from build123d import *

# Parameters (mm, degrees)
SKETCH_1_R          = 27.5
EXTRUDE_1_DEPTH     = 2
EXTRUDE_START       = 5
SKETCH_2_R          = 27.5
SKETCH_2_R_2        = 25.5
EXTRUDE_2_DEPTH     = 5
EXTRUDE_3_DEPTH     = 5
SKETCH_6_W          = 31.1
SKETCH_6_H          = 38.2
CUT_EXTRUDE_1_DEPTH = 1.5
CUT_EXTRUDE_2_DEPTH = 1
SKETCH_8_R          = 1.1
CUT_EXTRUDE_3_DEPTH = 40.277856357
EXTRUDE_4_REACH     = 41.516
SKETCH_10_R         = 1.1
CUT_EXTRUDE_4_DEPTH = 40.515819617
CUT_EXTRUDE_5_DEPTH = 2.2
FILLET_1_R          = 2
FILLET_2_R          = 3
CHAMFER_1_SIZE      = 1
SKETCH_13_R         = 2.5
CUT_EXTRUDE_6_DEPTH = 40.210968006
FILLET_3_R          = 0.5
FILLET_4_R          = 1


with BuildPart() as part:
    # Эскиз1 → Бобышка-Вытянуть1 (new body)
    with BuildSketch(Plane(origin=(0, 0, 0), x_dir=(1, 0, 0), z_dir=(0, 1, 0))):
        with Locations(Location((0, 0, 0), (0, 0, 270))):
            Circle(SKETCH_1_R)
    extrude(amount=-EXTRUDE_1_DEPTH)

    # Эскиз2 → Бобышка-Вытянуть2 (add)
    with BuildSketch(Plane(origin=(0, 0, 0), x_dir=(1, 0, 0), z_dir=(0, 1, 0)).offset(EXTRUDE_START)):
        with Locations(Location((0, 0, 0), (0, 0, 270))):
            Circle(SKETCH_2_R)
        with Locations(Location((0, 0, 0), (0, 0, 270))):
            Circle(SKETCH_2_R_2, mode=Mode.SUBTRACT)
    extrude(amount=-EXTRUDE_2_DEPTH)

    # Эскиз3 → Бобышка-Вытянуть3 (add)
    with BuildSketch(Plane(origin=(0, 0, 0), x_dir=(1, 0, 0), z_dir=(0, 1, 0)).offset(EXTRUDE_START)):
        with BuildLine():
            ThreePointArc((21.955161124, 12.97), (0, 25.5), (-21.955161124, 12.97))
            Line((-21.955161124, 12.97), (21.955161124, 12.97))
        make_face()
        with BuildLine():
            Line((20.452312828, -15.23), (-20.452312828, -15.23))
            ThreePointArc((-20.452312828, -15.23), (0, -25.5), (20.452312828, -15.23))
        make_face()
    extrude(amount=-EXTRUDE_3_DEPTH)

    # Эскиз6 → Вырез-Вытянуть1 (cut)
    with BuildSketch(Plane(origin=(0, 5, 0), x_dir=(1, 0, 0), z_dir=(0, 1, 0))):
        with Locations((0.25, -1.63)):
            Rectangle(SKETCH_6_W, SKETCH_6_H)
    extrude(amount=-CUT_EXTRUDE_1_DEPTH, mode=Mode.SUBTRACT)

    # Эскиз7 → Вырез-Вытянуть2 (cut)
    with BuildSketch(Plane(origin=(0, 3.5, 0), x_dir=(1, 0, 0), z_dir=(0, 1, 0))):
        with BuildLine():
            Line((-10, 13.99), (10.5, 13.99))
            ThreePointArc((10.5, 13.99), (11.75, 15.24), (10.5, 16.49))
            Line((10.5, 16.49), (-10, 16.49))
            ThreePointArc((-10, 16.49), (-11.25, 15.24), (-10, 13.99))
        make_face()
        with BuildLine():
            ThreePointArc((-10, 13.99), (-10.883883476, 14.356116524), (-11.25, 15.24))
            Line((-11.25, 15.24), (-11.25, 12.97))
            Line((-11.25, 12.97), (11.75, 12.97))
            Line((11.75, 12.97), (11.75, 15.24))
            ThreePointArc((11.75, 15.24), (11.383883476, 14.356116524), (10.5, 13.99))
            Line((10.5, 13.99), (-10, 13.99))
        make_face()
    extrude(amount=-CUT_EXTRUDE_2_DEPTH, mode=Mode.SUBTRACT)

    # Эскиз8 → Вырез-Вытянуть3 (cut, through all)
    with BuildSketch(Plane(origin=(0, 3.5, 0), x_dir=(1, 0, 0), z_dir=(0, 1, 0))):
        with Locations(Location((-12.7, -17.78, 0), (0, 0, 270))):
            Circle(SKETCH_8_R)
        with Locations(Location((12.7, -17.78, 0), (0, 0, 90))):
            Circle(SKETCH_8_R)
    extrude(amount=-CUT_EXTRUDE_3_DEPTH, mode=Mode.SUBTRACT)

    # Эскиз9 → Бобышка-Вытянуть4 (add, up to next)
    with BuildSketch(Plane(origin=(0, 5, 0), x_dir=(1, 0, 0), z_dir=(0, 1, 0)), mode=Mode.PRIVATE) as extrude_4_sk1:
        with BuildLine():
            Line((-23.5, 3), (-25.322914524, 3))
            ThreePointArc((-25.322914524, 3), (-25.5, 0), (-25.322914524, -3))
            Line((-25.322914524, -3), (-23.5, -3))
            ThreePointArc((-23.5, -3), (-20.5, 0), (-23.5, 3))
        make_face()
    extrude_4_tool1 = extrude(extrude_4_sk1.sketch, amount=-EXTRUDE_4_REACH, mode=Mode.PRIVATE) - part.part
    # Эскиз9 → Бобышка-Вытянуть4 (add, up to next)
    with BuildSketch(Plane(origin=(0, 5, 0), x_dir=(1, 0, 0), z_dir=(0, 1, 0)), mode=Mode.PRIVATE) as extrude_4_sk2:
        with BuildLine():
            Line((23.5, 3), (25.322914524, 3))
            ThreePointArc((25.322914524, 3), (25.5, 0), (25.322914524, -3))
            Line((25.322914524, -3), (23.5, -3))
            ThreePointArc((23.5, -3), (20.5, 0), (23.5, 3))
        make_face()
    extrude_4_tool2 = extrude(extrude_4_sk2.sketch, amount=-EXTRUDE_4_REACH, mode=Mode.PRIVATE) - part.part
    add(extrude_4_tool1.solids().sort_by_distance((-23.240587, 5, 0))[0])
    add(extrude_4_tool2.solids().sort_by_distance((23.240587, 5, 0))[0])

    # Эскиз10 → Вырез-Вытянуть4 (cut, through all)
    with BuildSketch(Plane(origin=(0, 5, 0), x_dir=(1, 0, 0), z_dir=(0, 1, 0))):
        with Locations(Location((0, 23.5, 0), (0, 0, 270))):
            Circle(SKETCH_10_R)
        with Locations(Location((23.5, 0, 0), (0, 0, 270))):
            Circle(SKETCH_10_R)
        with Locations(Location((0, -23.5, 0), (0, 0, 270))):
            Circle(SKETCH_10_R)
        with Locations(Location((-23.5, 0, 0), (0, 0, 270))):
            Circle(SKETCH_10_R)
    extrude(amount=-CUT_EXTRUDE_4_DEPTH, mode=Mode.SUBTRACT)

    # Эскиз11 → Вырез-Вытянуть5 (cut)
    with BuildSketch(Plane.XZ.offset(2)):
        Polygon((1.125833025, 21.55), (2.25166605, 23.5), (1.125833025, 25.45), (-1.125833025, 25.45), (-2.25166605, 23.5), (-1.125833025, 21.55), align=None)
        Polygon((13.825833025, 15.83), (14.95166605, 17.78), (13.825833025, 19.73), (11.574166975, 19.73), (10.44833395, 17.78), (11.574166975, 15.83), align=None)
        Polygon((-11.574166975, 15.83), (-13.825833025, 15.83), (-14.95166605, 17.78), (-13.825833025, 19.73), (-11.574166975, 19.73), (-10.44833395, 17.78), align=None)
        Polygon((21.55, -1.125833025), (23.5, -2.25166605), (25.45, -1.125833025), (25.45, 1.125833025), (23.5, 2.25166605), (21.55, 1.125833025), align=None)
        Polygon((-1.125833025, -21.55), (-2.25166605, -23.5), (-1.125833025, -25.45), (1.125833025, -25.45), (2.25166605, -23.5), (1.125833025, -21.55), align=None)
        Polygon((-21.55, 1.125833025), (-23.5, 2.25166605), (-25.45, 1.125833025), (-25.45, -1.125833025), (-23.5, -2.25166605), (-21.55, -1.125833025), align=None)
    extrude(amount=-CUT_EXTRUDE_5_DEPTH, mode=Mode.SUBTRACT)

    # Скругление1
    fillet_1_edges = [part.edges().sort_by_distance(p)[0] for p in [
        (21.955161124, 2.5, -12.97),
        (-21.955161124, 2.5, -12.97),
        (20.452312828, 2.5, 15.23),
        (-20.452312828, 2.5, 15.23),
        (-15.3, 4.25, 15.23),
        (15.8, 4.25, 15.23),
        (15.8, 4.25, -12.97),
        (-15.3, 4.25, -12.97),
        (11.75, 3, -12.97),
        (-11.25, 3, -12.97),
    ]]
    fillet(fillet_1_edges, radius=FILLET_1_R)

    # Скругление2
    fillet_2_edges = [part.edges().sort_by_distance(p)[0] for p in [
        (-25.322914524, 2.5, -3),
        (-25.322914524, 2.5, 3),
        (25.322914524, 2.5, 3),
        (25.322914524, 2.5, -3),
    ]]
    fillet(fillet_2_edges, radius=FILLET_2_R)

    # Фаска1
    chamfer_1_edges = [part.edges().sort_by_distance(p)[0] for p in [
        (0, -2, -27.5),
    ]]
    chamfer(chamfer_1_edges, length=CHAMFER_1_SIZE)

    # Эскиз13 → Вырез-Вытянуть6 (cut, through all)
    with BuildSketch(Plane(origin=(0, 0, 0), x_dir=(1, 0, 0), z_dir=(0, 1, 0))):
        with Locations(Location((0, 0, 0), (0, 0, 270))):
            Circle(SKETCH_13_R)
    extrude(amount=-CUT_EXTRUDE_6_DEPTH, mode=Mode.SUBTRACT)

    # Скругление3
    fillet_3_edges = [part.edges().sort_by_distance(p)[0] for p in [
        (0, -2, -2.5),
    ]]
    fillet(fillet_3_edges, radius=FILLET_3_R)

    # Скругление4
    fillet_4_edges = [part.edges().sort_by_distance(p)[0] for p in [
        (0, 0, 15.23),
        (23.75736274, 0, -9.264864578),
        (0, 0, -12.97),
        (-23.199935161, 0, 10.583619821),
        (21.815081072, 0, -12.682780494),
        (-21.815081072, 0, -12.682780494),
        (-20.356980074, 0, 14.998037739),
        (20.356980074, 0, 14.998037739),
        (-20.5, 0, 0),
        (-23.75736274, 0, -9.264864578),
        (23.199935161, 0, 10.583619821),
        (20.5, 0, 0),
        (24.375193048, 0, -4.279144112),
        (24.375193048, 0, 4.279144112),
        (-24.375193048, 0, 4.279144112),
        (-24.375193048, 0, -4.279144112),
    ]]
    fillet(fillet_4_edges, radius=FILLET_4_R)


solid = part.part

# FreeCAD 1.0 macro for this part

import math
import FreeCAD as App
import Part
import Sketcher
Q = App.Units.Quantity


def edges_at(feature, points):
    """Names of the edges that pass closest to the given points."""
    edges = feature.Shape.Edges
    near = lambda p: min(range(len(edges)), key=lambda i: edges[i].distToShape(Part.Vertex(*p))[0])
    return sorted({f"Edge{near(p) + 1}" for p in points})


def add_polygon(sketch, points):
    """Adds a closed chain of lines whose ends are joined by coincident constraints."""
    first, n = sketch.GeometryCount, len(points)
    for a, b in zip(points, points[1:] + points[:1]):
        sketch.addGeometry(Part.LineSegment(App.Vector(*a, 0), App.Vector(*b, 0)), False)
    for i in range(n):
        sketch.addConstraint(Sketcher.Constraint("Coincident", first + i, 2, first + (i + 1) % n, 1))

doc = App.newDocument("Part")
params = doc.addObject("Spreadsheet::Sheet", "Params")
for row, (alias, value) in enumerate([
    ("sketch1_diameter", "55 mm"),
    ("pad1_length", "2 mm"),
    ("sketch2_diameter", "55 mm"),
    ("sketch2_diameter2", "51 mm"),
    ("pad2_length", "5 mm"),
    ("sketch3_radius", "25.5 mm"),
    ("pad3_length", "5 mm"),
    ("sketch4_width", "31.1 mm"),
    ("sketch4_height", "38.2 mm"),
    ("pocket1_length", "1.5 mm"),
    ("sketch5_width", "23 mm"),
    ("sketch5_radius", "1.25 mm"),
    ("sketch5_height", "2.27 mm"),
    ("pocket2_length", "1 mm"),
    ("sketch6_diameter", "2.2 mm"),
    ("sketch7_radius", "3 mm"),
    ("sketch7_radius2", "25.5 mm"),
    ("sketch8_radius", "3 mm"),
    ("sketch8_radius2", "25.5 mm"),
    ("sketch9_diameter", "2.2 mm"),
    ("pocket5_length", "2.2 mm"),
    ("fillet_radius", "2 mm"),
    ("fillet2_radius", "3 mm"),
    ("chamfer_size", "1 mm"),
    ("sketch11_diameter", "5 mm"),
    ("fillet3_radius", "0.5 mm"),
    ("fillet4_radius", "1 mm"),
], start=1):
    params.set(f"A{row}", alias)
    params.set(f"B{row}", "=" + value)
    params.setAlias(f"B{row}", alias)

body = doc.addObject("PartDesign::Body", "Body")

# Sketch on XZ plane
sketch1 = body.newObject("Sketcher::SketchObject", "Sketch")
sketch1.AttachmentSupport = (doc.getObject("XZ_Plane"), [""])
sketch1.MapMode = "FlatFace"
sketch1.addGeometry(Part.Circle(App.Vector(0, 0, 0), App.Vector(0, 0, 1), 28), False)
sketch1.addConstraint(Sketcher.Constraint("Coincident", 0, 3, -1, 1))
sketch1.addConstraint(Sketcher.Constraint("Diameter", 0, 55.0))
sketch1.setExpression("Constraints[1]", "Params.sketch1_diameter")
pad1 = body.newObject("PartDesign::Pad", "Pad")
pad1.Profile = sketch1
pad1.setExpression("Length", "Params.pad1_length")

# Sketch on XZ plane
sketch2 = body.newObject("Sketcher::SketchObject", "Sketch001")
sketch2.AttachmentSupport = (doc.getObject("XZ_Plane"), [""])
sketch2.MapMode = "FlatFace"
sketch2.AttachmentOffset = App.Placement(App.Vector(0, 0, -5), App.Rotation())
sketch2.addGeometry(Part.Circle(App.Vector(0, 0, 0), App.Vector(0, 0, 1), 28), False)
sketch2.addGeometry(Part.Circle(App.Vector(0, 0, 0), App.Vector(0, 0, 1), 26), False)
sketch2.addConstraint(Sketcher.Constraint("Coincident", 0, 3, -1, 1))
sketch2.addConstraint(Sketcher.Constraint("Coincident", 1, 3, -1, 1))
sketch2.addConstraint(Sketcher.Constraint("Diameter", 0, 55.0))
sketch2.addConstraint(Sketcher.Constraint("Diameter", 1, 51.0))
sketch2.setExpression("Constraints[2]", "Params.sketch2_diameter")
sketch2.setExpression("Constraints[3]", "Params.sketch2_diameter2")
pad2 = body.newObject("PartDesign::Pad", "Pad001")
pad2.Profile = sketch2
pad2.setExpression("Length", "Params.pad2_length")

# Sketch on XZ plane
sketch3 = body.newObject("Sketcher::SketchObject", "Sketch002")
sketch3.AttachmentSupport = (doc.getObject("XZ_Plane"), [""])
sketch3.MapMode = "FlatFace"
sketch3.AttachmentOffset = App.Placement(App.Vector(0, 0, -5), App.Rotation())
sketch3.addGeometry(Part.ArcOfCircle(Part.Circle(App.Vector(0, 0, 0), App.Vector(0, 0, 1), 25), math.radians(-149), math.radians(-31)), False)
sketch3.addGeometry(Part.LineSegment(App.Vector(-22, -13, 0), App.Vector(22, -13, 0)), False)
sketch3.addGeometry(Part.LineSegment(App.Vector(20, 15, 0), App.Vector(-20, 15, 0)), False)
sketch3.addGeometry(Part.ArcOfCircle(Part.Circle(App.Vector(0, 0, 0), App.Vector(0, 0, 1), 26), math.radians(37), math.radians(143)), False)
sketch3.addConstraint(Sketcher.Constraint("Coincident", 0, 1, 1, 1))
sketch3.addConstraint(Sketcher.Constraint("Coincident", 1, 2, 0, 2))
sketch3.addConstraint(Sketcher.Constraint("Coincident", 2, 1, 3, 1))
sketch3.addConstraint(Sketcher.Constraint("Coincident", 3, 2, 2, 2))
sketch3.addConstraint(Sketcher.Constraint("Horizontal", 1))
sketch3.addConstraint(Sketcher.Constraint("Horizontal", 2))
sketch3.addConstraint(Sketcher.Constraint("Coincident", 0, 3, -1, 1))
sketch3.addConstraint(Sketcher.Constraint("Coincident", 3, 3, -1, 1))
sketch3.addConstraint(Sketcher.Constraint("Equal", 0, 3))
sketch3.addConstraint(Sketcher.Constraint("Radius", 0, 25.5))
sketch3.addConstraint(Sketcher.Constraint("DistanceY", 1, 2, 2, 1, 28.2))
sketch3.addConstraint(Sketcher.Constraint("DistanceY", 0, 1, -1, 1, 12.97))
sketch3.setExpression("Constraints[9]", "Params.sketch3_radius")
pad3 = body.newObject("PartDesign::Pad", "Pad002")
pad3.Profile = sketch3
pad3.setExpression("Length", "Params.pad3_length")

# Sketch on XZ plane
sketch4 = body.newObject("Sketcher::SketchObject", "Sketch003")
sketch4.AttachmentSupport = (doc.getObject("XZ_Plane"), [""])
sketch4.MapMode = "FlatFace"
sketch4.AttachmentOffset = App.Placement(App.Vector(0, 0, -5), App.Rotation())
add_polygon(sketch4, [(-15, -17), (-15, 21), (16, 21), (16, -17)])  # lines 0-3
sketch4.addConstraint(Sketcher.Constraint("Vertical", 0))
sketch4.addConstraint(Sketcher.Constraint("Horizontal", 1))
sketch4.addConstraint(Sketcher.Constraint("Vertical", 2))
sketch4.addConstraint(Sketcher.Constraint("Horizontal", 3))
sketch4.addConstraint(Sketcher.Constraint("DistanceX", 1, 1, 1, 2, 31.1))
sketch4.addConstraint(Sketcher.Constraint("DistanceY", 0, 1, 0, 2, 38.2))
sketch4.addConstraint(Sketcher.Constraint("DistanceX", 0, 2, -1, 1, 15.3))
sketch4.addConstraint(Sketcher.Constraint("DistanceY", -1, 1, 0, 2, 20.73))
sketch4.setExpression("Constraints[8]", "Params.sketch4_width")
sketch4.setExpression("Constraints[9]", "Params.sketch4_height")
pocket1 = body.newObject("PartDesign::Pocket", "Pocket")
pocket1.Profile = sketch4
pocket1.setExpression("Length", "Params.pocket1_length")
pocket1.Reversed = True

# Sketch on XZ plane
sketch5 = body.newObject("Sketcher::SketchObject", "Sketch004")
sketch5.AttachmentSupport = (doc.getObject("XZ_Plane"), [""])
sketch5.MapMode = "FlatFace"
sketch5.AttachmentOffset = App.Placement(App.Vector(0, 0, -3.5), App.Rotation())
sketch5.addGeometry(Part.ArcOfCircle(Part.Circle(App.Vector(10.5, -15.2, 0), App.Vector(0, 0, 1), 1.2), math.radians(-90), math.radians(0)), False)
sketch5.addGeometry(Part.LineSegment(App.Vector(10.5, -16.5, 0), App.Vector(-10, -16.5, 0)), False)
sketch5.addGeometry(Part.ArcOfCircle(Part.Circle(App.Vector(-10, -15.2, 0), App.Vector(0, 0, 1), 1.2), math.radians(180), math.radians(270)), False)
sketch5.addGeometry(Part.LineSegment(App.Vector(-11.2, -15.2, 0), App.Vector(-11.2, -13, 0)), False)
sketch5.addGeometry(Part.LineSegment(App.Vector(-11.2, -13, 0), App.Vector(11.8, -13, 0)), False)
sketch5.addGeometry(Part.LineSegment(App.Vector(11.8, -13, 0), App.Vector(11.8, -15.2, 0)), False)
sketch5.addConstraint(Sketcher.Constraint("Tangent", 0, 1, 1, 1))
sketch5.addConstraint(Sketcher.Constraint("Tangent", 1, 2, 2, 2))
sketch5.addConstraint(Sketcher.Constraint("Tangent", 2, 1, 3, 1))
sketch5.addConstraint(Sketcher.Constraint("Coincident", 3, 2, 4, 1))
sketch5.addConstraint(Sketcher.Constraint("Coincident", 4, 2, 5, 1))
sketch5.addConstraint(Sketcher.Constraint("Tangent", 5, 2, 0, 2))
sketch5.addConstraint(Sketcher.Constraint("Horizontal", 1))
sketch5.addConstraint(Sketcher.Constraint("Vertical", 3))
sketch5.addConstraint(Sketcher.Constraint("Horizontal", 4))
sketch5.addConstraint(Sketcher.Constraint("Vertical", 5))
sketch5.addConstraint(Sketcher.Constraint("Equal", 0, 2))
sketch5.addConstraint(Sketcher.Constraint("DistanceX", 4, 1, 4, 2, 23.0))
sketch5.addConstraint(Sketcher.Constraint("Radius", 0, 1.25))
sketch5.addConstraint(Sketcher.Constraint("DistanceX", 2, 3, -1, 1, 10.0))
sketch5.addConstraint(Sketcher.Constraint("DistanceY", 3, 1, 3, 2, 2.27))
sketch5.addConstraint(Sketcher.Constraint("DistanceY", 0, 3, -1, 1, 15.24))
sketch5.setExpression("Constraints[11]", "Params.sketch5_width")
sketch5.setExpression("Constraints[12]", "Params.sketch5_radius")
sketch5.setExpression("Constraints[14]", "Params.sketch5_height")
pocket2 = body.newObject("PartDesign::Pocket", "Pocket001")
pocket2.Profile = sketch5
pocket2.setExpression("Length", "Params.pocket2_length")
pocket2.Reversed = True

# Sketch on XZ plane
sketch6 = body.newObject("Sketcher::SketchObject", "Sketch005")
sketch6.AttachmentSupport = (doc.getObject("XZ_Plane"), [""])
sketch6.MapMode = "FlatFace"
sketch6.AttachmentOffset = App.Placement(App.Vector(0, 0, -3.5), App.Rotation())
sketch6.addGeometry(Part.Circle(App.Vector(-12.7, 17.8, 0), App.Vector(0, 0, 1), 1.1), False)
sketch6.addGeometry(Part.Circle(App.Vector(12.7, 17.8, 0), App.Vector(0, 0, 1), 1.1), False)
sketch6.addConstraint(Sketcher.Constraint("Equal", 0, 1))
sketch6.addConstraint(Sketcher.Constraint("Symmetric", 0, 3, 1, 3, -2))
sketch6.addConstraint(Sketcher.Constraint("Diameter", 0, 2.2))
sketch6.addConstraint(Sketcher.Constraint("DistanceX", 0, 3, -1, 1, 12.7))
sketch6.addConstraint(Sketcher.Constraint("DistanceY", -1, 1, 0, 3, 17.78))
sketch6.setExpression("Constraints[2]", "Params.sketch6_diameter")
pocket3 = body.newObject("PartDesign::Pocket", "Pocket002")
pocket3.Profile = sketch6
pocket3.Type = "ThroughAll"
pocket3.Reversed = True

# Sketch on XZ plane
sketch7 = body.newObject("Sketcher::SketchObject", "Sketch006")
sketch7.AttachmentSupport = (doc.getObject("XZ_Plane"), [""])
sketch7.MapMode = "FlatFace"
sketch7.AttachmentOffset = App.Placement(App.Vector(0, 0, -5), App.Rotation())
sketch7.addGeometry(Part.LineSegment(App.Vector(-23.5, -3, 0), App.Vector(-25.3, -3, 0)), False)
sketch7.addGeometry(Part.ArcOfCircle(Part.Circle(App.Vector(0, 0, 0), App.Vector(0, 0, 1), 25.5), math.radians(173.24), math.radians(186.76)), False)
sketch7.addGeometry(Part.LineSegment(App.Vector(-25.3, 3, 0), App.Vector(-23.5, 3, 0)), False)
sketch7.addGeometry(Part.ArcOfCircle(Part.Circle(App.Vector(-23.5, 0, 0), App.Vector(0, 0, 1), 3), math.radians(-90), math.radians(90)), False)
sketch7.addConstraint(Sketcher.Constraint("Coincident", 0, 2, 1, 2))
sketch7.addConstraint(Sketcher.Constraint("Coincident", 1, 1, 2, 1))
sketch7.addConstraint(Sketcher.Constraint("Tangent", 2, 2, 3, 2))
sketch7.addConstraint(Sketcher.Constraint("Tangent", 3, 1, 0, 1))
sketch7.addConstraint(Sketcher.Constraint("Horizontal", 0))
sketch7.addConstraint(Sketcher.Constraint("Horizontal", 2))
sketch7.addConstraint(Sketcher.Constraint("Coincident", 1, 3, -1, 1))
sketch7.addConstraint(Sketcher.Constraint("PointOnObject", 3, 3, -1))
sketch7.addConstraint(Sketcher.Constraint("Radius", 3, 3.0))
sketch7.addConstraint(Sketcher.Constraint("Radius", 1, 25.5))
sketch7.addConstraint(Sketcher.Constraint("DistanceX", 3, 3, -1, 1, 23.5))
sketch7.setExpression("Constraints[8]", "Params.sketch7_radius")
sketch7.setExpression("Constraints[9]", "Params.sketch7_radius2")
pad4 = body.newObject("PartDesign::Pad", "Pad003")
pad4.Profile = sketch7
pad4.Type = "UpToFirst"

# Sketch on XZ plane
sketch8 = body.newObject("Sketcher::SketchObject", "Sketch007")
sketch8.AttachmentSupport = (doc.getObject("XZ_Plane"), [""])
sketch8.MapMode = "FlatFace"
sketch8.AttachmentOffset = App.Placement(App.Vector(0, 0, -5), App.Rotation())
sketch8.addGeometry(Part.LineSegment(App.Vector(25.3, -3, 0), App.Vector(23.5, -3, 0)), False)
sketch8.addGeometry(Part.ArcOfCircle(Part.Circle(App.Vector(23.5, 0, 0), App.Vector(0, 0, 1), 3), math.radians(90), math.radians(270)), False)
sketch8.addGeometry(Part.LineSegment(App.Vector(23.5, 3, 0), App.Vector(25.3, 3, 0)), False)
sketch8.addGeometry(Part.ArcOfCircle(Part.Circle(App.Vector(0, 0, 0), App.Vector(0, 0, 1), 25.5), math.radians(-6.76), math.radians(6.76)), False)
sketch8.addConstraint(Sketcher.Constraint("Tangent", 0, 2, 1, 2))
sketch8.addConstraint(Sketcher.Constraint("Tangent", 1, 1, 2, 1))
sketch8.addConstraint(Sketcher.Constraint("Coincident", 2, 2, 3, 2))
sketch8.addConstraint(Sketcher.Constraint("Coincident", 3, 1, 0, 1))
sketch8.addConstraint(Sketcher.Constraint("Horizontal", 0))
sketch8.addConstraint(Sketcher.Constraint("Horizontal", 2))
sketch8.addConstraint(Sketcher.Constraint("Coincident", 3, 3, -1, 1))
sketch8.addConstraint(Sketcher.Constraint("PointOnObject", 1, 3, -1))
sketch8.addConstraint(Sketcher.Constraint("Radius", 1, 3.0))
sketch8.addConstraint(Sketcher.Constraint("Radius", 3, 25.5))
sketch8.addConstraint(Sketcher.Constraint("DistanceX", -1, 1, 1, 3, 23.5))
sketch8.setExpression("Constraints[8]", "Params.sketch8_radius")
sketch8.setExpression("Constraints[9]", "Params.sketch8_radius2")
pad5 = body.newObject("PartDesign::Pad", "Pad004")
pad5.Profile = sketch8
pad5.Type = "UpToFirst"

# Sketch on XZ plane
sketch9 = body.newObject("Sketcher::SketchObject", "Sketch008")
sketch9.AttachmentSupport = (doc.getObject("XZ_Plane"), [""])
sketch9.MapMode = "FlatFace"
sketch9.AttachmentOffset = App.Placement(App.Vector(0, 0, -5), App.Rotation())
sketch9.addGeometry(Part.Circle(App.Vector(0, -23.5, 0), App.Vector(0, 0, 1), 1.1), False)
sketch9.addGeometry(Part.Circle(App.Vector(23.5, 0, 0), App.Vector(0, 0, 1), 1.1), False)
sketch9.addGeometry(Part.Circle(App.Vector(0, 23.5, 0), App.Vector(0, 0, 1), 1.1), False)
sketch9.addGeometry(Part.Circle(App.Vector(-23.5, 0, 0), App.Vector(0, 0, 1), 1.1), False)
sketch9.addConstraint(Sketcher.Constraint("Equal", 0, 1))
sketch9.addConstraint(Sketcher.Constraint("Equal", 1, 2))
sketch9.addConstraint(Sketcher.Constraint("Equal", 2, 3))
sketch9.addConstraint(Sketcher.Constraint("Symmetric", 0, 3, 2, 3, -1, 1))
sketch9.addConstraint(Sketcher.Constraint("Symmetric", 1, 3, 3, 3, -1, 1))
sketch9.addConstraint(Sketcher.Constraint("PointOnObject", 0, 3, -2))
sketch9.addConstraint(Sketcher.Constraint("PointOnObject", 1, 3, -1))
sketch9.addConstraint(Sketcher.Constraint("Diameter", 0, 2.2))
sketch9.addConstraint(Sketcher.Constraint("DistanceY", 0, 3, 2, 3, 47.0))
sketch9.addConstraint(Sketcher.Constraint("DistanceX", 3, 3, 1, 3, 47.0))
sketch9.setExpression("Constraints[7]", "Params.sketch9_diameter")
pocket4 = body.newObject("PartDesign::Pocket", "Pocket003")
pocket4.Profile = sketch9
pocket4.Type = "ThroughAll"
pocket4.Reversed = True

# Sketch on XZ plane
sketch10 = body.newObject("Sketcher::SketchObject", "Sketch009")
sketch10.AttachmentSupport = (doc.getObject("XZ_Plane"), [""])
sketch10.MapMode = "FlatFace"
sketch10.AttachmentOffset = App.Placement(App.Vector(0, 0, 2), App.Rotation())
add_polygon(sketch10, [(1.1, 21.6), (2.3, 23.5), (1.1, 25.4), (-1.1, 25.4), (-2.3, 23.5), (-1.1, 21.6)])  # lines 0-5
add_polygon(sketch10, [(13.8, 15.8), (15, 17.8), (13.8, 19.7), (11.6, 19.7), (10.4, 17.8), (11.6, 15.8)])  # lines 6-11
add_polygon(sketch10, [(-13.8, 15.8), (-11.6, 15.8), (-10.4, 17.8), (-11.6, 19.7), (-13.8, 19.7), (-15, 17.8)])  # lines 12-17
add_polygon(sketch10, [(21.6, -1.1), (23.5, -2.3), (25.4, -1.1), (25.4, 1.1), (23.5, 2.3), (21.6, 1.1)])  # lines 18-23
add_polygon(sketch10, [(-1.1, -21.6), (-2.3, -23.5), (-1.1, -25.4), (1.1, -25.4), (2.3, -23.5), (1.1, -21.6)])  # lines 24-29
add_polygon(sketch10, [(-21.6, 1.1), (-23.5, 2.3), (-25.4, 1.1), (-25.4, -1.1), (-23.5, -2.3), (-21.6, -1.1)])  # lines 30-35
sketch10.addConstraint(Sketcher.Constraint("Horizontal", 2))
sketch10.addConstraint(Sketcher.Constraint("Horizontal", 5))
sketch10.addConstraint(Sketcher.Constraint("Horizontal", 8))
sketch10.addConstraint(Sketcher.Constraint("Horizontal", 11))
sketch10.addConstraint(Sketcher.Constraint("Horizontal", 12))
sketch10.addConstraint(Sketcher.Constraint("Horizontal", 15))
sketch10.addConstraint(Sketcher.Constraint("Vertical", 20))
sketch10.addConstraint(Sketcher.Constraint("Vertical", 23))
sketch10.addConstraint(Sketcher.Constraint("Horizontal", 26))
sketch10.addConstraint(Sketcher.Constraint("Horizontal", 29))
sketch10.addConstraint(Sketcher.Constraint("Vertical", 32))
sketch10.addConstraint(Sketcher.Constraint("Vertical", 35))
sketch10.addConstraint(Sketcher.Constraint("Symmetric", 0, 2, 24, 2, -1, 1))
sketch10.addConstraint(Sketcher.Constraint("Symmetric", 1, 2, 25, 2, -1, 1))
sketch10.addConstraint(Sketcher.Constraint("Symmetric", 3, 2, 27, 2, -1, 1))
sketch10.addConstraint(Sketcher.Constraint("Symmetric", 4, 2, 28, 2, -1, 1))
sketch10.addConstraint(Sketcher.Constraint("Symmetric", 18, 2, 30, 2, -1, 1))
sketch10.addConstraint(Sketcher.Constraint("Symmetric", 19, 2, 31, 2, -1, 1))
sketch10.addConstraint(Sketcher.Constraint("Symmetric", 21, 2, 33, 2, -1, 1))
sketch10.addConstraint(Sketcher.Constraint("Symmetric", 22, 2, 34, 2, -1, 1))
sketch10.addConstraint(Sketcher.Constraint("Symmetric", 0, 2, 3, 2, -2))
sketch10.addConstraint(Sketcher.Constraint("Symmetric", 10, 2, 12, 2, -2))
sketch10.addConstraint(Sketcher.Constraint("Symmetric", 9, 2, 13, 2, -2))
sketch10.addConstraint(Sketcher.Constraint("Symmetric", 8, 2, 14, 2, -2))
sketch10.addConstraint(Sketcher.Constraint("Symmetric", 6, 2, 16, 2, -2))
sketch10.addConstraint(Sketcher.Constraint("Symmetric", 21, 2, 30, 2, -2))
sketch10.addConstraint(Sketcher.Constraint("Parallel", 0, 3))
sketch10.addConstraint(Sketcher.Constraint("Parallel", 1, 4))
sketch10.addConstraint(Sketcher.Constraint("Parallel", 3, 6))
sketch10.addConstraint(Sketcher.Constraint("Parallel", 4, 7))
sketch10.addConstraint(Sketcher.Constraint("Parallel", 6, 9))
sketch10.addConstraint(Sketcher.Constraint("Parallel", 7, 10))
sketch10.addConstraint(Sketcher.Constraint("Parallel", 9, 13))
sketch10.addConstraint(Sketcher.Constraint("Parallel", 13, 16))
sketch10.addConstraint(Sketcher.Constraint("Parallel", 14, 17))
sketch10.addConstraint(Sketcher.Constraint("Perpendicular", 16, 18))
sketch10.addConstraint(Sketcher.Constraint("Perpendicular", 17, 19))
sketch10.addConstraint(Sketcher.Constraint("Parallel", 18, 21))
sketch10.addConstraint(Sketcher.Constraint("Parallel", 19, 22))
sketch10.addConstraint(Sketcher.Constraint("Perpendicular", 21, 24))
sketch10.addConstraint(Sketcher.Constraint("Parallel", 24, 27))
sketch10.addConstraint(Sketcher.Constraint("Perpendicular", 27, 30))
sketch10.addConstraint(Sketcher.Constraint("Parallel", 30, 33))
sketch10.addConstraint(Sketcher.Constraint("Horizontal", 6, 2, 9, 2))
sketch10.addConstraint(Sketcher.Constraint("Horizontal", 20, 2, 22, 2))
sketch10.addConstraint(Sketcher.Constraint("Vertical", 2, 2, 4, 2))
sketch10.addConstraint(Sketcher.Constraint("Vertical", 8, 2, 10, 2))
sketch10.addConstraint(Sketcher.Constraint("Equal", 5, 8))
sketch10.addConstraint(Sketcher.Constraint("Equal", 29, 20))
sketch10.addConstraint(Sketcher.Constraint("Equal", 4, 6))
sketch10.addConstraint(Sketcher.Constraint("Equal", 17, 18))
sketch10.addConstraint(Sketcher.Constraint("Angle", 0, Q("60 deg")))
sketch10.addConstraint(Sketcher.Constraint("DistanceY", -1, 1, 0, 2, 23.5))
sketch10.addConstraint(Sketcher.Constraint("DistanceX", -1, 1, 18, 2, 23.5))
sketch10.addConstraint(Sketcher.Constraint("DistanceY", 4, 2, 2, 2, 3.9))
sketch10.addConstraint(Sketcher.Constraint("DistanceX", 0, 2, 6, 2, 12.7))
sketch10.addConstraint(Sketcher.Constraint("DistanceY", -1, 1, 6, 2, 17.78))
sketch10.addConstraint(Sketcher.Constraint("DistanceX", 2, 2, 0, 2, 3.377499))
pocket5 = body.newObject("PartDesign::Pocket", "Pocket004")
pocket5.Profile = sketch10
pocket5.setExpression("Length", "Params.pocket5_length")
doc.recompute()

fillet = body.newObject("PartDesign::Fillet", "Fillet")
fillet.Base = (pocket5, edges_at(pocket5, [
    (21.955, 2.5, -12.97),
    (-21.955, 2.5, -12.97),
    (20.452, 2.5, 15.23),
    (-20.452, 2.5, 15.23),
    (-15.3, 4.25, 15.23),
    (15.8, 4.25, 15.23),
    (15.8, 4.25, -12.97),
    (-15.3, 4.25, -12.97),
    (11.75, 3, -12.97),
    (-11.25, 3, -12.97),
]))
fillet.setExpression("Radius", "Params.fillet_radius")
doc.recompute()

fillet2 = body.newObject("PartDesign::Fillet", "Fillet001")
fillet2.Base = (fillet, edges_at(fillet, [
    (-25.323, 2.5, -3),
    (-25.323, 2.5, 3),
    (25.323, 2.5, 3),
    (25.323, 2.5, -3),
]))
fillet2.setExpression("Radius", "Params.fillet2_radius")
doc.recompute()

chamfer = body.newObject("PartDesign::Chamfer", "Chamfer")
chamfer.Base = (fillet2, edges_at(fillet2, [(0, -2, -27.5)]))
chamfer.setExpression("Size", "Params.chamfer_size")

# Sketch on XZ plane
sketch11 = body.newObject("Sketcher::SketchObject", "Sketch010")
sketch11.AttachmentSupport = (doc.getObject("XZ_Plane"), [""])
sketch11.MapMode = "FlatFace"
sketch11.addGeometry(Part.Circle(App.Vector(0, 0, 0), App.Vector(0, 0, 1), 2.5), False)
sketch11.addConstraint(Sketcher.Constraint("Coincident", 0, 3, -1, 1))
sketch11.addConstraint(Sketcher.Constraint("Diameter", 0, 5.0))
sketch11.setExpression("Constraints[1]", "Params.sketch11_diameter")
pocket6 = body.newObject("PartDesign::Pocket", "Pocket005")
pocket6.Profile = sketch11
pocket6.Type = "ThroughAll"
pocket6.Reversed = True
doc.recompute()

fillet3 = body.newObject("PartDesign::Fillet", "Fillet002")
fillet3.Base = (pocket6, edges_at(pocket6, [(0, -2, -2.5)]))
fillet3.setExpression("Radius", "Params.fillet3_radius")
doc.recompute()

fillet4 = body.newObject("PartDesign::Fillet", "Fillet003")
fillet4.Base = (fillet3, edges_at(fillet3, [
    (0, 0, 15.23),
    (23.757, 0, -9.265),
    (0, 0, -12.97),
    (-23.2, 0, 10.584),
    (21.815, 0, -12.683),
    (-21.815, 0, -12.683),
    (-20.357, 0, 14.998),
    (20.357, 0, 14.998),
    (-20.5, 0, 0),
    (-23.757, 0, -9.265),
    (23.2, 0, 10.584),
    (20.5, 0, 0),
    (24.375, 0, -4.279),
    (24.375, 0, 4.279),
    (-24.375, 0, 4.279),
    (-24.375, 0, -4.279),
]))
fillet4.setExpression("Radius", "Params.fillet4_radius")

doc.recompute()
